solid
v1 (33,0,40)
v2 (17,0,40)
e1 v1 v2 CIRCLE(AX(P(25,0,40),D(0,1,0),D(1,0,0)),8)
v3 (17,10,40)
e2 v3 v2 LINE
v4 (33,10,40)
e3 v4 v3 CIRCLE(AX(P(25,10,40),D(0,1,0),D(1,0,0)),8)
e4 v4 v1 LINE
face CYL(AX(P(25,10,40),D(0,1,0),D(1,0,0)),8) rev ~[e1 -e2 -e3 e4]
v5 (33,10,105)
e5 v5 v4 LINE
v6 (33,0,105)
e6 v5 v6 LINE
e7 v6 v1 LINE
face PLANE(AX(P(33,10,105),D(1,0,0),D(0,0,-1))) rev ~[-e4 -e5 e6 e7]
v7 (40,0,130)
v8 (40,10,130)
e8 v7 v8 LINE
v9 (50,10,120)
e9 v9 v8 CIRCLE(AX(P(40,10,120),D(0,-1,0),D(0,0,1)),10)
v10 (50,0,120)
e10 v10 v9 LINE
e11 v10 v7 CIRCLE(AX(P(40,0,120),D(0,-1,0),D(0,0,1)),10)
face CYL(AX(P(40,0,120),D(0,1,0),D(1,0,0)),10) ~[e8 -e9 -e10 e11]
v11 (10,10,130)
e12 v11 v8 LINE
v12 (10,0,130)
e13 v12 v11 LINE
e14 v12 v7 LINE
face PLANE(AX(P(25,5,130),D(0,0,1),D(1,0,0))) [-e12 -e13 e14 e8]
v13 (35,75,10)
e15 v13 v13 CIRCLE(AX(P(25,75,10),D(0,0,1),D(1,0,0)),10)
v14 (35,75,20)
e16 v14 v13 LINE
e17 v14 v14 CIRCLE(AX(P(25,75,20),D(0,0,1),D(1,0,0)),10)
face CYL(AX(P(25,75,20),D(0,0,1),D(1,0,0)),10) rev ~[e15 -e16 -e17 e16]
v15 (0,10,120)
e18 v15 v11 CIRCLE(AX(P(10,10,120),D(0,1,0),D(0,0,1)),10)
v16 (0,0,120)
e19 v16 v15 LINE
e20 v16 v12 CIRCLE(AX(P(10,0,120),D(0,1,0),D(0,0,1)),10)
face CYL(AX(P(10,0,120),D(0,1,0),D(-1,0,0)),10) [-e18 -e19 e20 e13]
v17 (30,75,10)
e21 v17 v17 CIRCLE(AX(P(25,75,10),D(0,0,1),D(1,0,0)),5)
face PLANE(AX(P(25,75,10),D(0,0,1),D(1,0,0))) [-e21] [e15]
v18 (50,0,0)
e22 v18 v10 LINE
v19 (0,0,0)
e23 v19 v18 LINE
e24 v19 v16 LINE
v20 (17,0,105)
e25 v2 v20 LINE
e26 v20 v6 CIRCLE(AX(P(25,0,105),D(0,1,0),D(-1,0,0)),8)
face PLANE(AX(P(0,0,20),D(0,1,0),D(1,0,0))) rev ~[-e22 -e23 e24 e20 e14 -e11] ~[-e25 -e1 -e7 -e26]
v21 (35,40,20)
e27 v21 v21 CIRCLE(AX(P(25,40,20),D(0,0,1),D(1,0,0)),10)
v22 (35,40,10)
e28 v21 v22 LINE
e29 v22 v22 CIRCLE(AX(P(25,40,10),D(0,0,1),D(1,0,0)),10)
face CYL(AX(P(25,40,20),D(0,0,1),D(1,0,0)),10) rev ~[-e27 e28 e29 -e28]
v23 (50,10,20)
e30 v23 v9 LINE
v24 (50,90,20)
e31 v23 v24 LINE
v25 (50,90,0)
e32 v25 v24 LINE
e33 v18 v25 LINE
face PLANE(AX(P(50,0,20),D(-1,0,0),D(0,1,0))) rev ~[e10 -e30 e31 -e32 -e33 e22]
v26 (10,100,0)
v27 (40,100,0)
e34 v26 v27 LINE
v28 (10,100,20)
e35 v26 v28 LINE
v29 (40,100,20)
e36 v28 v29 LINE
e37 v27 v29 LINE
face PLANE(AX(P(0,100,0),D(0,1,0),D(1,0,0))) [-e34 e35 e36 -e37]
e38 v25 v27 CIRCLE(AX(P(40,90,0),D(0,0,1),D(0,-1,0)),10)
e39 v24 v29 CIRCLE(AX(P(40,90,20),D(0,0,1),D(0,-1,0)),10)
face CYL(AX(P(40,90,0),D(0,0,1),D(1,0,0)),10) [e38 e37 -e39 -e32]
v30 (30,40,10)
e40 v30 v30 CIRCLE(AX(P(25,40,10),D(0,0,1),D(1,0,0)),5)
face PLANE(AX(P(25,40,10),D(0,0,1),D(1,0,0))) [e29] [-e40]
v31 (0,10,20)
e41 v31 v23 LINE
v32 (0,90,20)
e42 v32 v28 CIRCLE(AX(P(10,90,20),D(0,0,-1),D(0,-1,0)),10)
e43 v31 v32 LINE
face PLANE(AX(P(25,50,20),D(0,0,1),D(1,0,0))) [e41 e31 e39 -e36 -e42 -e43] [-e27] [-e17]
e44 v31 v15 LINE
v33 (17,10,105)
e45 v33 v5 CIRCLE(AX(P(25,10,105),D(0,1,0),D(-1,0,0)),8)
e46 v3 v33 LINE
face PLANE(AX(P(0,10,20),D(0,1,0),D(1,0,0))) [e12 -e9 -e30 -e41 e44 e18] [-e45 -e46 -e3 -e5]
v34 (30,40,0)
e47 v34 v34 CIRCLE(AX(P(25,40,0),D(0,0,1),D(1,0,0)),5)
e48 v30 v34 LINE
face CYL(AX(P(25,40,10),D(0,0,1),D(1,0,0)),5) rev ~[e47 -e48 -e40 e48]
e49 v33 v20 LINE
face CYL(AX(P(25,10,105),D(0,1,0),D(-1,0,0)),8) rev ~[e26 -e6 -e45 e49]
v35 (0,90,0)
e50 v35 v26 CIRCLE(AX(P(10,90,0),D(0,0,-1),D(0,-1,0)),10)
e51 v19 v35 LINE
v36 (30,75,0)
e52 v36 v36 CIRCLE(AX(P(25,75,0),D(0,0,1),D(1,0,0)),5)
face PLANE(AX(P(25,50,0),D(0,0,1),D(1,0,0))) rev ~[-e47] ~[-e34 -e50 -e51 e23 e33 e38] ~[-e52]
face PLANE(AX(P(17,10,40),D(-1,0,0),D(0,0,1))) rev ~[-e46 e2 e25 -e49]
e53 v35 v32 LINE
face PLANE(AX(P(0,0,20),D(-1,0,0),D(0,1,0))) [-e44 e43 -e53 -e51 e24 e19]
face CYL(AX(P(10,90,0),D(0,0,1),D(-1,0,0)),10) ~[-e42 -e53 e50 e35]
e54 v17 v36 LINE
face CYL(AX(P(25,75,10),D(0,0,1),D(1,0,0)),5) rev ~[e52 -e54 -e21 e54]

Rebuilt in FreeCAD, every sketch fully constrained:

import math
import FreeCAD as App
import Part
import Sketcher


def edges_at(feature, points):
    """Names of the edges that pass closest to the given points."""
    edges = feature.Shape.Edges
    near = lambda p: min(range(len(edges)), key=lambda i: edges[i].distToShape(Part.Vertex(*p))[0])
    return sorted({f"Edge{near(p) + 1}" for p in points})

doc = App.newDocument("Part")
body = doc.addObject("PartDesign::Body", "Body")

sketch1 = doc.addObject("Sketcher::SketchObject", "Sketch")
body.addObject(sketch1)
sketch1.AttachmentSupport = (doc.XY_Plane, [""])
sketch1.MapMode = "FlatFace"
sketch1.addGeometry(Part.LineSegment(App.Vector(0, 100, 0), App.Vector(0, 0, 0)), False)
sketch1.addGeometry(Part.LineSegment(App.Vector(0, 0, 0), App.Vector(50, 0, 0)), False)
sketch1.addGeometry(Part.LineSegment(App.Vector(50, 0, 0), App.Vector(50, 100, 0)), False)
sketch1.addGeometry(Part.LineSegment(App.Vector(50, 100, 0), App.Vector(0, 100, 0)), False)
sketch1.addConstraint(Sketcher.Constraint("Coincident", 0, 2, 1, 1))
sketch1.addConstraint(Sketcher.Constraint("Coincident", 1, 2, 2, 1))
sketch1.addConstraint(Sketcher.Constraint("Coincident", 2, 2, 3, 1))
sketch1.addConstraint(Sketcher.Constraint("Coincident", 3, 2, 0, 1))
sketch1.addConstraint(Sketcher.Constraint("Vertical", 0))
sketch1.addConstraint(Sketcher.Constraint("Horizontal", 1))
sketch1.addConstraint(Sketcher.Constraint("Vertical", 2))
sketch1.addConstraint(Sketcher.Constraint("Horizontal", 3))
sketch1.addConstraint(Sketcher.Constraint("Coincident", 0, 2, -1, 1))
sketch1.addConstraint(Sketcher.Constraint("DistanceX", 1, 1, 1, 2, 50.0))
sketch1.addConstraint(Sketcher.Constraint("DistanceY", 0, 2, 0, 1, 100.0))
pad1 = doc.addObject("PartDesign::Pad", "Pad")
body.addObject(pad1)
pad1.Profile = sketch1
pad1.Length = 20

sketch2 = doc.addObject("Sketcher::SketchObject", "Sketch001")
body.addObject(sketch2)
sketch2.AttachmentSupport = (doc.XY_Plane, [""])
sketch2.MapMode = "FlatFace"
sketch2.AttachmentOffset = App.Placement(App.Vector(0, 0, 20), App.Rotation())
sketch2.addGeometry(Part.Circle(App.Vector(25, 75, 0), App.Vector(0, 0, 1), 10), False)
sketch2.addGeometry(Part.Circle(App.Vector(25, 40, 0), App.Vector(0, 0, 1), 10), False)
sketch2.addConstraint(Sketcher.Constraint("Equal", 0, 1))
sketch2.addConstraint(Sketcher.Constraint("Vertical", 0, 3, 1, 3))
sketch2.addConstraint(Sketcher.Constraint("Diameter", 0, 20.0))
sketch2.addConstraint(Sketcher.Constraint("DistanceX", -1, 1, 0, 3, 25.0))
sketch2.addConstraint(Sketcher.Constraint("DistanceY", -1, 1, 0, 3, 75.0))
sketch2.addConstraint(Sketcher.Constraint("DistanceY", -1, 1, 1, 3, 40.0))
pocket1 = doc.addObject("PartDesign::Pocket", "Pocket")
body.addObject(pocket1)
pocket1.Profile = sketch2
pocket1.Length = 10

sketch3 = doc.addObject("Sketcher::SketchObject", "Sketch002")
body.addObject(sketch3)
sketch3.AttachmentSupport = (doc.XY_Plane, [""])
sketch3.MapMode = "FlatFace"
sketch3.AttachmentOffset = App.Placement(App.Vector(0, 0, 10), App.Rotation())
sketch3.addGeometry(Part.Circle(App.Vector(25, 75, 0), App.Vector(0, 0, 1), 5), False)
sketch3.addConstraint(Sketcher.Constraint("Diameter", 0, 10.0))
sketch3.addConstraint(Sketcher.Constraint("DistanceX", -1, 1, 0, 3, 25.0))
sketch3.addConstraint(Sketcher.Constraint("DistanceY", -1, 1, 0, 3, 75.0))
pocket2 = doc.addObject("PartDesign::Pocket", "Pocket001")
body.addObject(pocket2)
pocket2.Profile = sketch3
pocket2.Length = 10

sketch4 = doc.addObject("Sketcher::SketchObject", "Sketch003")
body.addObject(sketch4)
sketch4.AttachmentSupport = (doc.XY_Plane, [""])
sketch4.MapMode = "FlatFace"
sketch4.AttachmentOffset = App.Placement(App.Vector(0, 0, 10), App.Rotation())
sketch4.addGeometry(Part.Circle(App.Vector(25, 40, 0), App.Vector(0, 0, 1), 5), False)
sketch4.addConstraint(Sketcher.Constraint("Diameter", 0, 10.0))
sketch4.addConstraint(Sketcher.Constraint("DistanceX", -1, 1, 0, 3, 25.0))
sketch4.addConstraint(Sketcher.Constraint("DistanceY", -1, 1, 0, 3, 40.0))
pocket3 = doc.addObject("PartDesign::Pocket", "Pocket002")
body.addObject(pocket3)
pocket3.Profile = sketch4
pocket3.Length = 10

sketch5 = doc.addObject("Sketcher::SketchObject", "Sketch004")
body.addObject(sketch5)
sketch5.AttachmentSupport = (doc.XY_Plane, [""])
sketch5.MapMode = "FlatFace"
sketch5.AttachmentOffset = App.Placement(App.Vector(0, 0, 20), App.Rotation())
sketch5.addGeometry(Part.LineSegment(App.Vector(0, 10, 0), App.Vector(0, 0, 0)), False)
sketch5.addGeometry(Part.LineSegment(App.Vector(0, 0, 0), App.Vector(50, 0, 0)), False)
sketch5.addGeometry(Part.LineSegment(App.Vector(50, 0, 0), App.Vector(50, 10, 0)), False)
sketch5.addGeometry(Part.LineSegment(App.Vector(50, 10, 0), App.Vector(0, 10, 0)), False)
sketch5.addConstraint(Sketcher.Constraint("Coincident", 0, 2, 1, 1))
sketch5.addConstraint(Sketcher.Constraint("Coincident", 1, 2, 2, 1))
sketch5.addConstraint(Sketcher.Constraint("Coincident", 2, 2, 3, 1))
sketch5.addConstraint(Sketcher.Constraint("Coincident", 3, 2, 0, 1))
sketch5.addConstraint(Sketcher.Constraint("Vertical", 0))
sketch5.addConstraint(Sketcher.Constraint("Horizontal", 1))
sketch5.addConstraint(Sketcher.Constraint("Vertical", 2))
sketch5.addConstraint(Sketcher.Constraint("Horizontal", 3))
sketch5.addConstraint(Sketcher.Constraint("Coincident", 0, 2, -1, 1))
sketch5.addConstraint(Sketcher.Constraint("DistanceX", 1, 1, 1, 2, 50.0))
sketch5.addConstraint(Sketcher.Constraint("DistanceY", 0, 2, 0, 1, 10.0))
pad2 = doc.addObject("PartDesign::Pad", "Pad001")
body.addObject(pad2)
pad2.Profile = sketch5
pad2.Length = 110
doc.recompute()

fillet = doc.addObject("PartDesign::Fillet", "Fillet")
body.addObject(fillet)
fillet.Base = (pad2, edges_at(pad2, [
    (0, 100, 10),
    (50, 100, 10),
    (0, 5, 130),
    (50, 5, 130),
]))
fillet.Radius = 10

sketch6 = doc.addObject("Sketcher::SketchObject", "Sketch005")
body.addObject(sketch6)
sketch6.AttachmentSupport = (doc.XZ_Plane, [""])
sketch6.MapMode = "FlatFace"
sketch6.AttachmentOffset = App.Placement(App.Vector(0, 0, -10), App.Rotation())
sketch6.addGeometry(Part.LineSegment(App.Vector(33, 105, 0), App.Vector(33, 40, 0)), False)
sketch6.addGeometry(Part.ArcOfCircle(Part.Circle(App.Vector(25, 40, 0), App.Vector(0, 0, 1), 8), math.radians(180), math.radians(360)), False)
sketch6.addGeometry(Part.LineSegment(App.Vector(17, 40, 0), App.Vector(17, 105, 0)), False)
sketch6.addGeometry(Part.ArcOfCircle(Part.Circle(App.Vector(25, 105, 0), App.Vector(0, 0, 1), 8), math.radians(0), math.radians(180)), False)
sketch6.addConstraint(Sketcher.Constraint("Tangent", 0, 2, 1, 2))
sketch6.addConstraint(Sketcher.Constraint("Tangent", 1, 1, 2, 1))
sketch6.addConstraint(Sketcher.Constraint("Tangent", 2, 2, 3, 2))
sketch6.addConstraint(Sketcher.Constraint("Tangent", 3, 1, 0, 1))
sketch6.addConstraint(Sketcher.Constraint("Vertical", 0))
sketch6.addConstraint(Sketcher.Constraint("Vertical", 2))
sketch6.addConstraint(Sketcher.Constraint("Radius", 1, 8.0))
sketch6.addConstraint(Sketcher.Constraint("DistanceY", 0, 2, 0, 1, 65.0))
sketch6.addConstraint(Sketcher.Constraint("DistanceX", -1, 1, 1, 3, 25.0))
sketch6.addConstraint(Sketcher.Constraint("DistanceY", -1, 1, 1, 3, 40.0))
pocket4 = doc.addObject("PartDesign::Pocket", "Pocket003")
body.addObject(pocket4)
pocket4.Profile = sketch6
pocket4.Length = 10
pocket4.Reversed = True

doc.recompute()
